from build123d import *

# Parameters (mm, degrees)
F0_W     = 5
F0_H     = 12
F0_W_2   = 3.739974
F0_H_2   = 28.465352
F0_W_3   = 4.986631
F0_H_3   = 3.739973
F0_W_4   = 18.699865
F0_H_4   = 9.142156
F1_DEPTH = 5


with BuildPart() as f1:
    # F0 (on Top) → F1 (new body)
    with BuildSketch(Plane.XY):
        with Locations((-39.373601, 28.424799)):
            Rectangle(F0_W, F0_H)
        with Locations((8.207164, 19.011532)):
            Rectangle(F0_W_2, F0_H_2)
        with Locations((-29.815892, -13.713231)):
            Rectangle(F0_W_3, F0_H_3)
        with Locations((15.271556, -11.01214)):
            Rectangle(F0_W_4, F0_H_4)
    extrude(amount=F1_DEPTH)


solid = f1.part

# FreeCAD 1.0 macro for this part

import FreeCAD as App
import Part
import Sketcher
from FreeCAD import Vector


def add_polygon(sketch, points):
    """Adds a closed chain of lines whose ends are joined by coincident constraints."""
    first, n = sketch.GeometryCount, len(points)
    for a, b in zip(points, points[1:] + points[:1]):
        sketch.addGeometry(Part.LineSegment(App.Vector(*a, 0), App.Vector(*b, 0)), False)
    for i in range(n):
        sketch.addConstraint(Sketcher.Constraint("Coincident", first + i, 2, first + (i + 1) % n, 1))

doc = App.newDocument("Part")
body = doc.addObject("PartDesign::Body", "Body")
body.AllowCompound = True

sketch1 = doc.addObject("Sketcher::SketchObject", "Sketch")
body.addObject(sketch1)
sketch1.AttachmentSupport = (doc.XY_Plane, [""])
sketch1.MapMode = "FlatFace"
add_polygon(sketch1, [(-41.9, 34.4), (-41.9, 22.4), (-36.9, 22.4), (-36.9, 34.4)])
add_polygon(sketch1, [(6.3, 33.2), (6.3, 4.8), (10.1, 4.8), (10.1, 33.2)])
add_polygon(sketch1, [(-32.3, -11.8), (-32.3, -15.6), (-27.3, -15.6), (-27.3, -11.8)])
add_polygon(sketch1, [(5.9, -6.4), (5.9, -15.6), (24.6, -15.6), (24.6, -6.4)])
sketch1.addConstraint([
    Sketcher.Constraint("Vertical", 0),
    Sketcher.Constraint("Horizontal", 1),
    Sketcher.Constraint("Vertical", 2),
    Sketcher.Constraint("Horizontal", 3),
    Sketcher.Constraint("Vertical", 4),
    Sketcher.Constraint("Horizontal", 5),
    Sketcher.Constraint("Vertical", 6),
    Sketcher.Constraint("Horizontal", 7),
    Sketcher.Constraint("Vertical", 8),
    Sketcher.Constraint("Horizontal", 9),
    Sketcher.Constraint("Vertical", 10),
    Sketcher.Constraint("Horizontal", 11),
    Sketcher.Constraint("Vertical", 12),
    Sketcher.Constraint("Horizontal", 13),
    Sketcher.Constraint("Vertical", 14),
    Sketcher.Constraint("Horizontal", 15),
    Sketcher.Constraint("Horizontal", 9, 2, 12, 2),
    Sketcher.Constraint("Equal", 7, 8),
    Sketcher.Constraint("DistanceX", 1, 1, 1, 2, 5.0),
    Sketcher.Constraint("DistanceY", 0, 2, 0, 1, 12.0),
    Sketcher.Constraint("DistanceX", 9, 1, 9, 2, 4.986631),
    Sketcher.Constraint("DistanceY", 4, 2, 4, 1, 28.465352),
    Sketcher.Constraint("DistanceX", 0, 2, -1, 1, 41.873601),
    Sketcher.Constraint("DistanceY", -1, 1, 0, 2, 22.424799),
    Sketcher.Constraint("DistanceY", 10, 2, 4, 2, 16.622101),
    Sketcher.Constraint("DistanceX", 9, 2, 12, 2, 33.2442),
    Sketcher.Constraint("DistanceX", 5, 1, 5, 2, 3.739974),
    Sketcher.Constraint("DistanceX", 13, 1, 13, 2, 18.699865),
    Sketcher.Constraint("DistanceY", 12, 2, 12, 1, 9.142156),
    Sketcher.Constraint("DistanceX", -1, 1, 5, 2, 10.077151),
    Sketcher.Constraint("DistanceX", -1, 1, 13, 2, 24.621489),
    Sketcher.Constraint("DistanceY", 14, 2, -1, 1, 6.441062),
])
pad1 = doc.addObject("PartDesign::Pad", "Pad")
body.addObject(pad1)
pad1.Profile = sketch1
pad1.Length = 5

doc.recompute()
